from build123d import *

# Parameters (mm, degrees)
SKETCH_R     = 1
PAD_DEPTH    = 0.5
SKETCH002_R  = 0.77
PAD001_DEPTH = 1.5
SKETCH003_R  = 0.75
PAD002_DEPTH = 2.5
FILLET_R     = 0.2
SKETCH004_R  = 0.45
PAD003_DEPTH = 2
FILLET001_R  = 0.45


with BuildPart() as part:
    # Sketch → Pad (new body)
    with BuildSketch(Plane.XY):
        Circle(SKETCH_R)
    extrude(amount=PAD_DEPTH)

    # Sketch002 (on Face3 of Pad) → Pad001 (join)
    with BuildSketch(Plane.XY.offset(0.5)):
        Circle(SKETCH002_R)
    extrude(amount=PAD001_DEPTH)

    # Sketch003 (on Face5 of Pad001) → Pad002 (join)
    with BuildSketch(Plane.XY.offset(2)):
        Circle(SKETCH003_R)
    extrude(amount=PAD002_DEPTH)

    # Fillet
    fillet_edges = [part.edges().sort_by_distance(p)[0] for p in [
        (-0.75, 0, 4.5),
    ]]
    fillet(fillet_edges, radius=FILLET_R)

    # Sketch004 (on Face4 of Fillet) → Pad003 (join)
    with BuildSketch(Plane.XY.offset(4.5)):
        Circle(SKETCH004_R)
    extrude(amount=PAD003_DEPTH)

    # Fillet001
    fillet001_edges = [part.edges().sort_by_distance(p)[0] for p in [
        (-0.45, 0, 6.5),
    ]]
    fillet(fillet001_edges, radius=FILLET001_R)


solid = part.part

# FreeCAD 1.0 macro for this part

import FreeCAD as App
import Part
import Sketcher
from FreeCAD import Vector
Q = App.Units.Quantity


def edges_at(feature, points):
    """Names of the edges that pass closest to the given points."""
    edges = feature.Shape.Edges
    near = lambda p: min(range(len(edges)), key=lambda i: edges[i].distToShape(Part.Vertex(*p))[0])
    return sorted({f"Edge{near(p) + 1}" for p in points})

doc = App.newDocument("Part")
body = doc.addObject("PartDesign::Body", "Body")

sketch1 = doc.addObject("Sketcher::SketchObject", "Sketch")
body.addObject(sketch1)
sketch1.AttachmentSupport = (doc.XY_Plane, [""])
sketch1.MapMode = "FlatFace"
sketch1.addGeometry(Part.Circle(Vector(0, 0, 0), Vector(0, 0, 1), 1), False)
sketch1.addConstraint([
    Sketcher.Constraint("Coincident", 0, 3, -1, 1),
    Sketcher.Constraint("Diameter", 0, Q("2 mm")),
])
pad1 = doc.addObject("PartDesign::Pad", "Pad")
body.addObject(pad1)
pad1.Profile = sketch1
pad1.Length = 0.5

sketch2 = doc.addObject("Sketcher::SketchObject", "Sketch001")
body.addObject(sketch2)
sketch2.AttachmentSupport = (doc.XY_Plane, [""])
sketch2.MapMode = "FlatFace"
sketch2.AttachmentOffset = App.Placement(Vector(0, 0, 0.5), App.Rotation())
sketch2.addGeometry(Part.Circle(Vector(0, 0, 0), Vector(0, 0, 1), 0.8), False)
sketch2.addConstraint([
    Sketcher.Constraint("Coincident", 0, 3, -1, 1),
    Sketcher.Constraint("Diameter", 0, Q("1.54 mm")),
])
pad2 = doc.addObject("PartDesign::Pad", "Pad001")
body.addObject(pad2)
pad2.Profile = sketch2
pad2.Length = 1.5

sketch3 = doc.addObject("Sketcher::SketchObject", "Sketch002")
body.addObject(sketch3)
sketch3.AttachmentSupport = (doc.XY_Plane, [""])
sketch3.MapMode = "FlatFace"
sketch3.AttachmentOffset = App.Placement(Vector(0, 0, 2), App.Rotation())
sketch3.addGeometry(Part.Circle(Vector(0, 0, 0), Vector(0, 0, 1), 0.8), False)
sketch3.addConstraint([
    Sketcher.Constraint("Coincident", 0, 3, -1, 1),
    Sketcher.Constraint("Diameter", 0, Q("1.5 mm")),
])
pad3 = doc.addObject("PartDesign::Pad", "Pad002")
body.addObject(pad3)
pad3.Profile = sketch3
pad3.Length = 2.5
doc.recompute()

fillet = doc.addObject("PartDesign::Fillet", "Fillet")
body.addObject(fillet)
fillet.Base = (pad3, edges_at(pad3, [(-0.75, 0, 4.5)]))
fillet.Radius = 0.2

sketch4 = doc.addObject("Sketcher::SketchObject", "Sketch003")
body.addObject(sketch4)
sketch4.AttachmentSupport = (doc.XY_Plane, [""])
sketch4.MapMode = "FlatFace"
sketch4.AttachmentOffset = App.Placement(Vector(0, 0, 4.5), App.Rotation())
sketch4.addGeometry(Part.Circle(Vector(0, 0, 0), Vector(0, 0, 1), 0.45), False)
sketch4.addConstraint([
    Sketcher.Constraint("Coincident", 0, 3, -1, 1),
    Sketcher.Constraint("Diameter", 0, Q("0.9 mm")),
])
pad4 = doc.addObject("PartDesign::Pad", "Pad003")
body.addObject(pad4)
pad4.Profile = sketch4
pad4.Length = 2
doc.recompute()

fillet2 = doc.addObject("PartDesign::Fillet", "Fillet001")
body.addObject(fillet2)
fillet2.Base = (pad4, edges_at(pad4, [(-0.45, 0, 6.5)]))
fillet2.Radius = 0.45

doc.recompute()
